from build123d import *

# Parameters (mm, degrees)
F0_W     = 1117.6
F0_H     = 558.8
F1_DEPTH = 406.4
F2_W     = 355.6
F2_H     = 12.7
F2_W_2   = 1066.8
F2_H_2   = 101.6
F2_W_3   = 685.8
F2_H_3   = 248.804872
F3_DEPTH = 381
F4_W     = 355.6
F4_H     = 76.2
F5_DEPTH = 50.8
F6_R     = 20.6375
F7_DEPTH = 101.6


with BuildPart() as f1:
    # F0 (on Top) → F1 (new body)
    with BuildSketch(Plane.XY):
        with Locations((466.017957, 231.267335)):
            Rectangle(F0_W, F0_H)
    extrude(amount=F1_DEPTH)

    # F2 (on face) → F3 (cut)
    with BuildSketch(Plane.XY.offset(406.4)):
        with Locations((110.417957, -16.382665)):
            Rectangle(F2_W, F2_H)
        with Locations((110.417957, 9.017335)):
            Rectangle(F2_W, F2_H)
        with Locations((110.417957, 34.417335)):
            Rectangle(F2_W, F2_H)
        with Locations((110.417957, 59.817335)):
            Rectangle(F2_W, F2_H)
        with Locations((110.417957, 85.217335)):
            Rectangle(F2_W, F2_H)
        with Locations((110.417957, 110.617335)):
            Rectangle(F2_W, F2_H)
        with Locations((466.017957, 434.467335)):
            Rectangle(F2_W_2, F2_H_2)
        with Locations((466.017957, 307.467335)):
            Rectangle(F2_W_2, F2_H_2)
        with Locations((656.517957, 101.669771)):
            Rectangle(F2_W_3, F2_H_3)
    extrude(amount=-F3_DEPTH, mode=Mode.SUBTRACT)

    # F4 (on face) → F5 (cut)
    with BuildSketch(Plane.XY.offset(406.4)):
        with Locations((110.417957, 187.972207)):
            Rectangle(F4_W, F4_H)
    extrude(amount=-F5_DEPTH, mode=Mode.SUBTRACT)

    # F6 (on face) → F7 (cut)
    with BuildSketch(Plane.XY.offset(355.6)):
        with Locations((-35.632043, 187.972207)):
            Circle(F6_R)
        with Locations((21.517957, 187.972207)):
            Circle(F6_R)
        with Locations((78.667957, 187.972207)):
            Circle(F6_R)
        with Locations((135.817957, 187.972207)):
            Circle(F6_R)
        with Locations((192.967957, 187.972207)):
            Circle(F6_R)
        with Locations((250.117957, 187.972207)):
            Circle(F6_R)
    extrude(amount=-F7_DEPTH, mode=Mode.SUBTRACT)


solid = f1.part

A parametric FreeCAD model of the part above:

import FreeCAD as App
import Part
import Sketcher
from FreeCAD import Vector
Q = App.Units.Quantity


def add_polygon(sketch, points):
    """Adds a closed chain of lines whose ends are joined by coincident constraints."""
    first, n = sketch.GeometryCount, len(points)
    for a, b in zip(points, points[1:] + points[:1]):
        sketch.addGeometry(Part.LineSegment(App.Vector(*a, 0), App.Vector(*b, 0)), False)
    for i in range(n):
        sketch.addConstraint(Sketcher.Constraint("Coincident", first + i, 2, first + (i + 1) % n, 1))

doc = App.newDocument("Part")
body = doc.addObject("PartDesign::Body", "Body")

# Sketch on XY plane
sketch1 = body.newObject("Sketcher::SketchObject", "Sketch")
sketch1.AttachmentSupport = (doc.getObject("XY_Plane"), [""])
sketch1.MapMode = "FlatFace"
add_polygon(sketch1, [(-93, 511), (-93, -48), (1025, -48), (1025, 511)])  # lines 0-3
sketch1.addConstraint([
    Sketcher.Constraint("Vertical", 0),
    Sketcher.Constraint("Horizontal", 1),
    Sketcher.Constraint("Vertical", 2),
    Sketcher.Constraint("Horizontal", 3),
    Sketcher.Constraint("DistanceX", 1, 1, 1, 2, Q("44 in")),
    Sketcher.Constraint("DistanceY", 0, 2, 0, 1, Q("22 in")),
    Sketcher.Constraint("DistanceX", 0, 2, -1, 1, 92.782043),
    Sketcher.Constraint("DistanceY", 0, 2, -1, 1, 48.132665),
])
pad1 = body.newObject("PartDesign::Pad", "Pad")
pad1.Profile = sketch1
pad1.Length = Q("16 in")

# Sketch on XY plane
sketch2 = body.newObject("Sketcher::SketchObject", "Sketch001")
sketch2.AttachmentSupport = (doc.getObject("XY_Plane"), [""])
sketch2.MapMode = "FlatFace"
sketch2.AttachmentOffset = App.Placement(Vector(0, 0, 16 * 25.4), App.Rotation())
add_polygon(sketch2, [(-67, -10), (-67, -23), (288, -23), (288, -10)])  # lines 0-3
add_polygon(sketch2, [(-67, 15), (-67, 3), (288, 3), (288, 15)])  # lines 4-7
add_polygon(sketch2, [(-67, 41), (-67, 28), (288, 28), (288, 41)])  # lines 8-11
add_polygon(sketch2, [(-67, 66), (-67, 53), (288, 53), (288, 66)])  # lines 12-15
add_polygon(sketch2, [(-67, 92), (-67, 79), (288, 79), (288, 92)])  # lines 16-19
add_polygon(sketch2, [(-67, 117), (-67, 104), (288, 104), (288, 117)])  # lines 20-23
add_polygon(sketch2, [(-67, 485), (-67, 384), (999, 384), (999, 485)])  # lines 24-27
add_polygon(sketch2, [(-67, 358), (-67, 257), (999, 257), (999, 358)])  # lines 28-31
add_polygon(sketch2, [(314, 226), (314, -23), (999, -23), (999, 226)])  # lines 32-35
sketch2.addConstraint([
    Sketcher.Constraint("Vertical", 0),
    Sketcher.Constraint("Horizontal", 1),
    Sketcher.Constraint("Vertical", 2),
    Sketcher.Constraint("Horizontal", 3),
    Sketcher.Constraint("Vertical", 4),
    Sketcher.Constraint("Horizontal", 5),
    Sketcher.Constraint("Vertical", 6),
    Sketcher.Constraint("Horizontal", 7),
    Sketcher.Constraint("Vertical", 8),
    Sketcher.Constraint("Horizontal", 9),
    Sketcher.Constraint("Vertical", 10),
    Sketcher.Constraint("Horizontal", 11),
    Sketcher.Constraint("Vertical", 12),
    Sketcher.Constraint("Horizontal", 13),
    Sketcher.Constraint("Vertical", 14),
    Sketcher.Constraint("Horizontal", 15),
    Sketcher.Constraint("Vertical", 16),
    Sketcher.Constraint("Horizontal", 17),
    Sketcher.Constraint("Vertical", 18),
    Sketcher.Constraint("Horizontal", 19),
    Sketcher.Constraint("Vertical", 20),
    Sketcher.Constraint("Horizontal", 21),
    Sketcher.Constraint("Vertical", 22),
    Sketcher.Constraint("Horizontal", 23),
    Sketcher.Constraint("Vertical", 24),
    Sketcher.Constraint("Horizontal", 25),
    Sketcher.Constraint("Vertical", 26),
    Sketcher.Constraint("Horizontal", 27),
    Sketcher.Constraint("Vertical", 28),
    Sketcher.Constraint("Horizontal", 29),
    Sketcher.Constraint("Vertical", 30),
    Sketcher.Constraint("Horizontal", 31),
    Sketcher.Constraint("Vertical", 32),
    Sketcher.Constraint("Horizontal", 33),
    Sketcher.Constraint("Vertical", 34),
    Sketcher.Constraint("Horizontal", 35),
    Sketcher.Constraint("Horizontal", 1, 2, 32, 2),
    Sketcher.Constraint("Vertical", 3, 2, 4, 2),
    Sketcher.Constraint("Vertical", 2, 2, 5, 2),
    Sketcher.Constraint("Vertical", 7, 2, 8, 2),
    Sketcher.Constraint("Vertical", 6, 2, 9, 2),
    Sketcher.Constraint("Vertical", 11, 2, 12, 2),
    Sketcher.Constraint("Vertical", 10, 2, 13, 2),
    Sketcher.Constraint("Vertical", 15, 2, 16, 2),
    Sketcher.Constraint("Vertical", 14, 2, 17, 2),
    Sketcher.Constraint("Vertical", 19, 2, 20, 2),
    Sketcher.Constraint("Vertical", 18, 2, 21, 2),
    Sketcher.Constraint("Vertical", 23, 2, 24, 2),
    Sketcher.Constraint("Vertical", 27, 2, 28, 2),
    Sketcher.Constraint("Vertical", 26, 2, 29, 2),
    Sketcher.Constraint("Vertical", 30, 2, 33, 2),
    Sketcher.Constraint("Equal", 2, 4),
    Sketcher.Constraint("Equal", 6, 8),
    Sketcher.Constraint("Equal", 10, 12),
    Sketcher.Constraint("Equal", 14, 16),
    Sketcher.Constraint("Equal", 18, 20),
    Sketcher.Constraint("Equal", 26, 28),
    Sketcher.Constraint("DistanceX", 1, 1, 1, 2, Q("14 in")),
    Sketcher.Constraint("DistanceX", 25, 1, 25, 2, Q("42 in")),
    Sketcher.Constraint("DistanceX", 33, 1, 33, 2, Q("27 in")),
    Sketcher.Constraint("DistanceY", 24, 2, 24, 1, Q("4 in")),
    Sketcher.Constraint("DistanceY", 0, 2, 0, 1, Q("0.5 in")),
    Sketcher.Constraint("DistanceY", 0, 2, 4, 2, Q("1 in")),
    Sketcher.Constraint("DistanceY", 4, 2, 8, 2, Q("1 in")),
    Sketcher.Constraint("DistanceY", 8, 2, 12, 2, Q("1 in")),
    Sketcher.Constraint("DistanceY", 12, 2, 16, 2, Q("1 in")),
    Sketcher.Constraint("DistanceY", 16, 2, 20, 2, Q("1 in")),
    Sketcher.Constraint("DistanceY", 20, 2, 24, 2, Q("11 in")),
    Sketcher.Constraint("DistanceY", 28, 2, 24, 2, Q("5 in")),
    Sketcher.Constraint("DistanceY", 32, 2, 32, 1, 248.804872),
    Sketcher.Constraint("DistanceX", 0, 2, -1, 1, 67.382043),
    Sketcher.Constraint("DistanceY", 0, 2, -1, 1, 22.732665),
])
pocket1 = body.newObject("PartDesign::Pocket", "Pocket")
pocket1.Profile = sketch2
pocket1.Length = Q("15 in")

# Sketch on XY plane
sketch3 = body.newObject("Sketcher::SketchObject", "Sketch002")
sketch3.AttachmentSupport = (doc.getObject("XY_Plane"), [""])
sketch3.MapMode = "FlatFace"
sketch3.AttachmentOffset = App.Placement(Vector(0, 0, 16 * 25.4), App.Rotation())
add_polygon(sketch3, [(-67, 226), (-67, 150), (288, 150), (288, 226)])  # lines 0-3
sketch3.addConstraint([
    Sketcher.Constraint("Vertical", 0),
    Sketcher.Constraint("Horizontal", 1),
    Sketcher.Constraint("Vertical", 2),
    Sketcher.Constraint("Horizontal", 3),
    Sketcher.Constraint("DistanceX", 1, 1, 1, 2, Q("14 in")),
    Sketcher.Constraint("DistanceY", 0, 2, 0, 1, Q("3 in")),
    Sketcher.Constraint("DistanceX", 0, 2, -1, 1, 67.382043),
    Sketcher.Constraint("DistanceY", -1, 1, 0, 2, 149.872207),
])
pocket2 = body.newObject("PartDesign::Pocket", "Pocket001")
pocket2.Profile = sketch3
pocket2.Length = Q("2 in")

# Sketch on XY plane
sketch4 = body.newObject("Sketcher::SketchObject", "Sketch003")
sketch4.AttachmentSupport = (doc.getObject("XY_Plane"), [""])
sketch4.MapMode = "FlatFace"
sketch4.AttachmentOffset = App.Placement(Vector(0, 0, 14 * 25.4), App.Rotation())
sketch4.addGeometry([
    Part.Circle(Vector(-36, 188, 0), Vector(0, 0, 1), 21),  # 0
    Part.Circle(Vector(22, 188, 0), Vector(0, 0, 1), 21),  # 1
    Part.Circle(Vector(79, 188, 0), Vector(0, 0, 1), 21),  # 2
    Part.Circle(Vector(136, 188, 0), Vector(0, 0, 1), 21),  # 3
    Part.Circle(Vector(193, 188, 0), Vector(0, 0, 1), 21),  # 4
    Part.Circle(Vector(250, 188, 0), Vector(0, 0, 1), 21),  # 5
], False)
sketch4.addConstraint([
    Sketcher.Constraint("Equal", 0, 1),
    Sketcher.Constraint("Equal", 1, 2),
    Sketcher.Constraint("Equal", 2, 3),
    Sketcher.Constraint("Equal", 3, 4),
    Sketcher.Constraint("Equal", 4, 5),
    Sketcher.Constraint("Horizontal", 0, 3, 1, 3),
    Sketcher.Constraint("Horizontal", 1, 3, 2, 3),
    Sketcher.Constraint("Horizontal", 2, 3, 3, 3),
    Sketcher.Constraint("Horizontal", 3, 3, 4, 3),
    Sketcher.Constraint("Horizontal", 4, 3, 5, 3),
    Sketcher.Constraint("Diameter", 0, Q("1.625 in")),
    Sketcher.Constraint("DistanceX", 0, 3, 4, 3, Q("9 in")),
    Sketcher.Constraint("DistanceX", 1, 3, 5, 3, Q("9 in")),
    Sketcher.Constraint("DistanceX", 0, 3, 2, 3, Q("4.5 in")),
    Sketcher.Constraint("DistanceX", 1, 3, 3, 3, Q("4.5 in")),
    Sketcher.Constraint("DistanceX", 0, 3, 1, 3, Q("2.25 in")),
    Sketcher.Constraint("DistanceX", 0, 3, -1, 1, 35.632043),
    Sketcher.Constraint("DistanceY", -1, 1, 0, 3, 187.972207),
])
pocket3 = body.newObject("PartDesign::Pocket", "Pocket002")
pocket3.Profile = sketch4
pocket3.Length = Q("4 in")

doc.recompute()
